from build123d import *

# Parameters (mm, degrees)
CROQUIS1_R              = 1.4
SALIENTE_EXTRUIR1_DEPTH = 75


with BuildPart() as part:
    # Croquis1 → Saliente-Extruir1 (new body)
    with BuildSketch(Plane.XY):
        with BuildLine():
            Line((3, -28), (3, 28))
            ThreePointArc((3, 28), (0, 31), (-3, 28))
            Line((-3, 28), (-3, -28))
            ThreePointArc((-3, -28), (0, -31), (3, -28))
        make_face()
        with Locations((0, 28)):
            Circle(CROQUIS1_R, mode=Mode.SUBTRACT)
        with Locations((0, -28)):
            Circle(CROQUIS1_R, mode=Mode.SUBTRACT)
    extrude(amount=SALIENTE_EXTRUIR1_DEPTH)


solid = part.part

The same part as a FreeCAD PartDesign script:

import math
import FreeCAD as App
import Part
import Sketcher
from FreeCAD import Vector
Q = App.Units.Quantity

doc = App.newDocument("Part")
params = doc.addObject("Spreadsheet::Sheet", "Params")
for row, (alias, value) in enumerate([
    ("sketch1_radius", "3 mm"),
    ("sketch1_diameter", "2.8 mm"),
    ("sketch1_height", "56 mm"),
    ("pad1_length", "75 mm"),
], start=1):
    params.set(f"A{row}", alias)
    params.set(f"B{row}", "=" + value)
    params.setAlias(f"B{row}", alias)

body = doc.addObject("PartDesign::Body", "Body")

# Sketch on XY plane
sketch1 = body.newObject("Sketcher::SketchObject", "Sketch")
sketch1.AttachmentSupport = (doc.getObject("XY_Plane"), [""])
sketch1.MapMode = "FlatFace"
sketch1.addGeometry(Part.LineSegment(Vector(3, -28, 0), Vector(3, 28, 0)), False)
sketch1.addGeometry(Part.ArcOfCircle(Part.Circle(Vector(0, 28, 0), Vector(0, 0, 1), 3), math.radians(0), math.radians(180)), False)
sketch1.addGeometry(Part.LineSegment(Vector(-3, 28, 0), Vector(-3, -28, 0)), False)
sketch1.addGeometry(Part.ArcOfCircle(Part.Circle(Vector(0, -28, 0), Vector(0, 0, 1), 3), math.radians(180), math.radians(360)), False)
sketch1.addGeometry(Part.Circle(Vector(0, -28, 0), Vector(0, 0, 1), 1.4), False)
sketch1.addGeometry(Part.Circle(Vector(0, 28, 0), Vector(0, 0, 1), 1.4), False)
sketch1.addConstraint(Sketcher.Constraint("Tangent", 0, 2, 1, 1))
sketch1.addConstraint(Sketcher.Constraint("Tangent", 1, 2, 2, 1))
sketch1.addConstraint(Sketcher.Constraint("Tangent", 2, 2, 3, 1))
sketch1.addConstraint(Sketcher.Constraint("Tangent", 3, 2, 0, 1))
sketch1.addConstraint(Sketcher.Constraint("Vertical", 0))
sketch1.addConstraint(Sketcher.Constraint("Vertical", 2))
sketch1.addConstraint(Sketcher.Constraint("Coincident", 4, 3, 3, 3))
sketch1.addConstraint(Sketcher.Constraint("Coincident", 5, 3, 1, 3))
sketch1.addConstraint(Sketcher.Constraint("Equal", 4, 5))
sketch1.addConstraint(Sketcher.Constraint("Symmetric", 1, 3, 3, 3, -1, 1))
sketch1.addConstraint(Sketcher.Constraint("Radius", 1, Q("3 mm")))
sketch1.addConstraint(Sketcher.Constraint("Diameter", 4, Q("2.8 mm")))
sketch1.addConstraint(Sketcher.Constraint("DistanceY", 0, 1, 0, 2, Q("56 mm")))
sketch1.setExpression("Constraints[10]", "Params.sketch1_radius")
sketch1.setExpression("Constraints[11]", "Params.sketch1_diameter")
sketch1.setExpression("Constraints[12]", "Params.sketch1_height")
pad1 = body.newObject("PartDesign::Pad", "Pad")
pad1.Profile = sketch1
pad1.setExpression("Length", "Params.pad1_length")

doc.recompute()
